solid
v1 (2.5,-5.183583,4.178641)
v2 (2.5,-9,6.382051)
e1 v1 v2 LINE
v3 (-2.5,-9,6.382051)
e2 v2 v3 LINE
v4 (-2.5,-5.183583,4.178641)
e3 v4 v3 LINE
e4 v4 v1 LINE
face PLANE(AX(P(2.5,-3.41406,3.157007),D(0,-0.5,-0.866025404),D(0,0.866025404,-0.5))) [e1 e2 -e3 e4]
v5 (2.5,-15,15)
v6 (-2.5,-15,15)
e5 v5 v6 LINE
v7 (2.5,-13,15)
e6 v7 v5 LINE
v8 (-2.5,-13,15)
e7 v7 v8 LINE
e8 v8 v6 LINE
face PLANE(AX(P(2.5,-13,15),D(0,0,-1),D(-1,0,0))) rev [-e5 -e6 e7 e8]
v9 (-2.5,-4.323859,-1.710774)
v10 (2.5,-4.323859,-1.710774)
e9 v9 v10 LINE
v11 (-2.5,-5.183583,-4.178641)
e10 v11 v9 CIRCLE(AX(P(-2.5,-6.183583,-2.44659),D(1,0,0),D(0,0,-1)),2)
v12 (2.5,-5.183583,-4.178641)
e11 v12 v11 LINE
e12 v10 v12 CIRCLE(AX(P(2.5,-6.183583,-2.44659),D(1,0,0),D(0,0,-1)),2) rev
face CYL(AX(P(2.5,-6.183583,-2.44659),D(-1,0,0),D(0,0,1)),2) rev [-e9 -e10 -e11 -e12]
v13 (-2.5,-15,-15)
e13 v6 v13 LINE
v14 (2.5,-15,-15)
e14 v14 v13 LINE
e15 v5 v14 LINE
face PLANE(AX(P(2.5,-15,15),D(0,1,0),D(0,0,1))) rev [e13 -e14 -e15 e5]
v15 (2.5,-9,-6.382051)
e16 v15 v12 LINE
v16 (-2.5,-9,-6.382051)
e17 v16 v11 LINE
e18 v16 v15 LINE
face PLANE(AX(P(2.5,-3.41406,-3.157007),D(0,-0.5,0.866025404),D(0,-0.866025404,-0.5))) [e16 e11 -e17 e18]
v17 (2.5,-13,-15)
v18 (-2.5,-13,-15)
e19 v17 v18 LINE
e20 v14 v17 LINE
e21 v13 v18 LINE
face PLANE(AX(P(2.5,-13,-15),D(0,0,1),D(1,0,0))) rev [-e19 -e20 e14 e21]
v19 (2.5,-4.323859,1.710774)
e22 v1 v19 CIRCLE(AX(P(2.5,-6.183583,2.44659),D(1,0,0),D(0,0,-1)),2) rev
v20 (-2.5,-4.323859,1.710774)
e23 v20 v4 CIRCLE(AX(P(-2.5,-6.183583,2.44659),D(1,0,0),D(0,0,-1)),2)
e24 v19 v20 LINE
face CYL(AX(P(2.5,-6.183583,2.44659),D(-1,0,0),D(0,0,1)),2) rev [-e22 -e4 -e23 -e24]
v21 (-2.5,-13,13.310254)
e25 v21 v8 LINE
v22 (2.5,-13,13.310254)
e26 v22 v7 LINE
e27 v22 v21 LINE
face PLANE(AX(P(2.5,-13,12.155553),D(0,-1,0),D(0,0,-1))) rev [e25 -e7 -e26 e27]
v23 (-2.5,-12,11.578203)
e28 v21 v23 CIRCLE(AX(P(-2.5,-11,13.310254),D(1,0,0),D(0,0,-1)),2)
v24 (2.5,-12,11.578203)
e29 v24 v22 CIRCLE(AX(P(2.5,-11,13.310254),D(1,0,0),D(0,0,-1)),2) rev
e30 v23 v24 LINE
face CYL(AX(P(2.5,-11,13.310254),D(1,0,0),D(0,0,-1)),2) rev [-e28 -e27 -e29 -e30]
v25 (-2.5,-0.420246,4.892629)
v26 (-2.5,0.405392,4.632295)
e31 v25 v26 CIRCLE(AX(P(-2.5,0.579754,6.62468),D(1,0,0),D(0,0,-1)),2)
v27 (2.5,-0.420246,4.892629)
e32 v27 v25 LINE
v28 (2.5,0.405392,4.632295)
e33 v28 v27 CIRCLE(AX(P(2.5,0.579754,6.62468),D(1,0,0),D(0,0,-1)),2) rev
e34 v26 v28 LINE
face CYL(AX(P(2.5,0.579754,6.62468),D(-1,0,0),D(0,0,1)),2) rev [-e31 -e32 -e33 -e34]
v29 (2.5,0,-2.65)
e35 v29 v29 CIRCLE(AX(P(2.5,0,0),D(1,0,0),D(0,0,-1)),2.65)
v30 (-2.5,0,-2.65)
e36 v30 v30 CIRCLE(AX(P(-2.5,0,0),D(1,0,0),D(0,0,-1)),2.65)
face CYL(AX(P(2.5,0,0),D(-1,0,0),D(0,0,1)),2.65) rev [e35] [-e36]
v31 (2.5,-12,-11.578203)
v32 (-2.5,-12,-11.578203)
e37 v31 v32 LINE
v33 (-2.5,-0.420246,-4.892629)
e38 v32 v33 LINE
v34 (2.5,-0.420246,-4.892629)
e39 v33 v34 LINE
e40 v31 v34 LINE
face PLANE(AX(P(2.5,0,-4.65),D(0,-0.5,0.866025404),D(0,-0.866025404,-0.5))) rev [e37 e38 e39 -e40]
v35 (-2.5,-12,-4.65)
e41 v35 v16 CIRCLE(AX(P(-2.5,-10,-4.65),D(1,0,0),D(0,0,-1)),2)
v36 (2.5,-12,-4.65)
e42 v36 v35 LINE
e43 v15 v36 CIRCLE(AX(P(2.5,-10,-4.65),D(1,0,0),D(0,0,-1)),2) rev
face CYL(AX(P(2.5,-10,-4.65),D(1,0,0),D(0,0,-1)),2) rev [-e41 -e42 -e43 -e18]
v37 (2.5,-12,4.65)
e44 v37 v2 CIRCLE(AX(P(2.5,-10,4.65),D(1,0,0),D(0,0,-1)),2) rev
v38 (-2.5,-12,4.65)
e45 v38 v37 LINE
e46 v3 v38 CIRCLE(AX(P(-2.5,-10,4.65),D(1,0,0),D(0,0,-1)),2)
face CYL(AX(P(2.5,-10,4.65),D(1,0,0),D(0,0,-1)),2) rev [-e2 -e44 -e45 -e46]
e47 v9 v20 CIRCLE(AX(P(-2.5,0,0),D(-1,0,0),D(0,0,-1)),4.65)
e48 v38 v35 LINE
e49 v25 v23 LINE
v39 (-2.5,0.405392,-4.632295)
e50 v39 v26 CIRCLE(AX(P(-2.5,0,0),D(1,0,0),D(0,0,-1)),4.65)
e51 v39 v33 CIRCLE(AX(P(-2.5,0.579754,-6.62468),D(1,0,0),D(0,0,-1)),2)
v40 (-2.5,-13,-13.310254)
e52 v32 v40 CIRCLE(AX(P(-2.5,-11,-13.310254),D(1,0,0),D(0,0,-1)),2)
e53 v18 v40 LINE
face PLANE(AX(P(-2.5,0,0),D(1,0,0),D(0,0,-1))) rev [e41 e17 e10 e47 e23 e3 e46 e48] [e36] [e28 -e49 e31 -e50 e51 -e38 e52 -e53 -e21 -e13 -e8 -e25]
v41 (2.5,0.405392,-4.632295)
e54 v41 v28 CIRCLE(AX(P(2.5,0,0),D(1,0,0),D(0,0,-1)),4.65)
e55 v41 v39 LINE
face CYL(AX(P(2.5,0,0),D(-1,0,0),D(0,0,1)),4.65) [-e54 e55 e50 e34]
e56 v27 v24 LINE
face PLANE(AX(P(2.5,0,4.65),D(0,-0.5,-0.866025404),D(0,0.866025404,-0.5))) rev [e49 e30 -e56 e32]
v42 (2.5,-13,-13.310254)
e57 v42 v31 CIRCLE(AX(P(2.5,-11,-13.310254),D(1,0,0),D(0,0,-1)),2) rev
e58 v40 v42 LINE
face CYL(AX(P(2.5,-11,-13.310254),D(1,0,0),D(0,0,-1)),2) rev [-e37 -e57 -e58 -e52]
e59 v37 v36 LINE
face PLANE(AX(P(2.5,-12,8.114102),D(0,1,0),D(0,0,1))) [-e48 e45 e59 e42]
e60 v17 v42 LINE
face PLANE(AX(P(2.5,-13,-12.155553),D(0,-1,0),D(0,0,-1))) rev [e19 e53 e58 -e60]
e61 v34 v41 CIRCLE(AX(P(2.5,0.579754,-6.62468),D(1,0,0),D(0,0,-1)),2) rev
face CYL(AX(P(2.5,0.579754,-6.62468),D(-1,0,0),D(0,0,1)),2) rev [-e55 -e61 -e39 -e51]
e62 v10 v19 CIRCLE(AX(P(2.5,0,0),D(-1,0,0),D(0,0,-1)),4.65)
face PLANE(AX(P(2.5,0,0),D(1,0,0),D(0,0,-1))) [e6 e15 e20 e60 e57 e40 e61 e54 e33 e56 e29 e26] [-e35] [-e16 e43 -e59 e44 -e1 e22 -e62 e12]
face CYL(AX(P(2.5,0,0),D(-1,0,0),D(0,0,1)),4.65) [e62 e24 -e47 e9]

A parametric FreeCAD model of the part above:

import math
import FreeCAD as App
import Part
import Sketcher
from FreeCAD import Vector
Q = App.Units.Quantity


def edges_at(feature, points):
    """Names of the edges that pass closest to the given points."""
    edges = feature.Shape.Edges
    near = lambda p: min(range(len(edges)), key=lambda i: edges[i].distToShape(Part.Vertex(*p))[0])
    return sorted({f"Edge{near(p) + 1}" for p in points})

doc = App.newDocument("Part")
params = doc.addObject("Spreadsheet::Sheet", "Params")
for row, (alias, value) in enumerate([
    ("sketch1_diameter", "5.3 mm"),
    ("sketch1_width", "2 mm"),
    ("sketch1_height", "30 mm"),
    ("sketch1_radius", "4.65 mm"),
    ("pad1_length", "5 mm"),
    ("fillet_radius", "2 mm"),
], start=1):
    params.set(f"A{row}", alias)
    params.set(f"B{row}", "=" + value)
    params.setAlias(f"B{row}", alias)

body = doc.addObject("PartDesign::Body", "Body")

# Sketch on YZ plane
sketch1 = doc.addObject("Sketcher::SketchObject", "Sketch")
body.addObject(sketch1)
sketch1.AttachmentSupport = (doc.YZ_Plane, [""])
sketch1.MapMode = "FlatFace"
sketch1.addGeometry([
    Part.LineSegment(Vector(0, 4.7, 0), Vector(-13, 12.2, 0)),  # 0
    Part.LineSegment(Vector(-13, 12.2, 0), Vector(-13, 15, 0)),  # 1
    Part.LineSegment(Vector(-13, 15, 0), Vector(-15, 15, 0)),  # 2
    Part.LineSegment(Vector(-15, 15, 0), Vector(-15, -15, 0)),  # 3
    Part.LineSegment(Vector(-15, -15, 0), Vector(-13, -15, 0)),  # 4
    Part.LineSegment(Vector(-13, -15, 0), Vector(-13, -12.2, 0)),  # 5
    Part.LineSegment(Vector(-13, -12.2, 0), Vector(0, -4.7, 0)),  # 6
    Part.ArcOfCircle(Part.Circle(Vector(0, 0, 0), Vector(0, 0, 1), 4.7), math.radians(-90), math.radians(90)),  # 7
    Part.LineSegment(Vector(-12, -8.1, 0), Vector(-12, 8.1, 0)),  # 8
    Part.LineSegment(Vector(-12, 8.1, 0), Vector(-3.4, 3.2, 0)),  # 9
    Part.ArcOfCircle(Part.Circle(Vector(0, 0, 0), Vector(0, 0, 1), 4.7), math.radians(137), math.radians(223)),  # 10
    Part.LineSegment(Vector(-3.4, -3.2, 0), Vector(-12, -8.1, 0)),  # 11
    Part.Circle(Vector(0, 0, 0), Vector(0, 0, 1), 2.6),  # 12
], False)
sketch1.addConstraint([
    Sketcher.Constraint("Coincident", 0, 2, 1, 1),
    Sketcher.Constraint("Coincident", 1, 2, 2, 1),
    Sketcher.Constraint("Coincident", 2, 2, 3, 1),
    Sketcher.Constraint("Coincident", 3, 2, 4, 1),
    Sketcher.Constraint("Coincident", 4, 2, 5, 1),
    Sketcher.Constraint("Coincident", 5, 2, 6, 1),
    Sketcher.Constraint("Coincident", 6, 2, 7, 1),
    Sketcher.Constraint("Coincident", 7, 2, 0, 1),
    Sketcher.Constraint("Coincident", 8, 2, 9, 1),
    Sketcher.Constraint("Coincident", 9, 2, 10, 1),
    Sketcher.Constraint("Coincident", 10, 2, 11, 1),
    Sketcher.Constraint("Coincident", 11, 2, 8, 1),
    Sketcher.Constraint("Vertical", 1),
    Sketcher.Constraint("Horizontal", 2),
    Sketcher.Constraint("Vertical", 3),
    Sketcher.Constraint("Horizontal", 4),
    Sketcher.Constraint("Vertical", 5),
    Sketcher.Constraint("Vertical", 8),
    Sketcher.Constraint("Coincident", 7, 3, -1, 1),
    Sketcher.Constraint("Coincident", 10, 3, -1, 1),
    Sketcher.Constraint("Coincident", 12, 3, -1, 1),
    Sketcher.Constraint("Equal", 7, 10),
    Sketcher.Constraint("Symmetric", 1, 2, 4, 2, -1),
    Sketcher.Constraint("PointOnObject", 6, 2, -2),
    Sketcher.Constraint("PointOnObject", 7, 2, -2),
    Sketcher.Constraint("Parallel", 0, 9),
    Sketcher.Constraint("Parallel", 6, 11),
    Sketcher.Constraint("Vertical", 9, 2, 10, 2),
    Sketcher.Constraint("Equal", 1, 5),
    Sketcher.Constraint("Diameter", 12, Q("5.3 mm")),
    Sketcher.Constraint("DistanceX", 2, 2, 2, 1, Q("2 mm")),
    Sketcher.Constraint("DistanceY", 3, 2, 3, 1, Q("30 mm")),
    Sketcher.Constraint("Angle", 0, Q("150 deg")),
    Sketcher.Constraint("Radius", 7, Q("4.65 mm")),
    Sketcher.Constraint("DistanceX", 0, 2, -1, 1, Q("13 mm")),
    Sketcher.Constraint("DistanceX", 8, 2, -1, 1, Q("12 mm")),
    Sketcher.Constraint("DistanceY", -1, 1, 8, 2, Q("8.114102 mm")),
])
sketch1.setExpression("Constraints[29]", "Params.sketch1_diameter")
sketch1.setExpression("Constraints[30]", "Params.sketch1_width")
sketch1.setExpression("Constraints[31]", "Params.sketch1_height")
sketch1.setExpression("Constraints[33]", "Params.sketch1_radius")
pad1 = doc.addObject("PartDesign::Pad", "Pad")
body.addObject(pad1)
pad1.Profile = sketch1
pad1.setExpression("Length", "Params.pad1_length")
pad1.Midplane = True
doc.recompute()

fillet = doc.addObject("PartDesign::Fillet", "Fillet")
body.addObject(fillet)
fillet.Base = (pad1, edges_at(pad1, [
    (0, 0, -4.65),
    (0, -13, -12.156),
    (0, -13, 12.156),
    (0, 0, 4.65),
    (0, -3.414, 3.157),
    (0, -12, 8.114),
    (0, -12, -8.114),
    (0, -3.414, -3.157),
]))
fillet.setExpression("Radius", "Params.fillet_radius")

doc.recompute()
